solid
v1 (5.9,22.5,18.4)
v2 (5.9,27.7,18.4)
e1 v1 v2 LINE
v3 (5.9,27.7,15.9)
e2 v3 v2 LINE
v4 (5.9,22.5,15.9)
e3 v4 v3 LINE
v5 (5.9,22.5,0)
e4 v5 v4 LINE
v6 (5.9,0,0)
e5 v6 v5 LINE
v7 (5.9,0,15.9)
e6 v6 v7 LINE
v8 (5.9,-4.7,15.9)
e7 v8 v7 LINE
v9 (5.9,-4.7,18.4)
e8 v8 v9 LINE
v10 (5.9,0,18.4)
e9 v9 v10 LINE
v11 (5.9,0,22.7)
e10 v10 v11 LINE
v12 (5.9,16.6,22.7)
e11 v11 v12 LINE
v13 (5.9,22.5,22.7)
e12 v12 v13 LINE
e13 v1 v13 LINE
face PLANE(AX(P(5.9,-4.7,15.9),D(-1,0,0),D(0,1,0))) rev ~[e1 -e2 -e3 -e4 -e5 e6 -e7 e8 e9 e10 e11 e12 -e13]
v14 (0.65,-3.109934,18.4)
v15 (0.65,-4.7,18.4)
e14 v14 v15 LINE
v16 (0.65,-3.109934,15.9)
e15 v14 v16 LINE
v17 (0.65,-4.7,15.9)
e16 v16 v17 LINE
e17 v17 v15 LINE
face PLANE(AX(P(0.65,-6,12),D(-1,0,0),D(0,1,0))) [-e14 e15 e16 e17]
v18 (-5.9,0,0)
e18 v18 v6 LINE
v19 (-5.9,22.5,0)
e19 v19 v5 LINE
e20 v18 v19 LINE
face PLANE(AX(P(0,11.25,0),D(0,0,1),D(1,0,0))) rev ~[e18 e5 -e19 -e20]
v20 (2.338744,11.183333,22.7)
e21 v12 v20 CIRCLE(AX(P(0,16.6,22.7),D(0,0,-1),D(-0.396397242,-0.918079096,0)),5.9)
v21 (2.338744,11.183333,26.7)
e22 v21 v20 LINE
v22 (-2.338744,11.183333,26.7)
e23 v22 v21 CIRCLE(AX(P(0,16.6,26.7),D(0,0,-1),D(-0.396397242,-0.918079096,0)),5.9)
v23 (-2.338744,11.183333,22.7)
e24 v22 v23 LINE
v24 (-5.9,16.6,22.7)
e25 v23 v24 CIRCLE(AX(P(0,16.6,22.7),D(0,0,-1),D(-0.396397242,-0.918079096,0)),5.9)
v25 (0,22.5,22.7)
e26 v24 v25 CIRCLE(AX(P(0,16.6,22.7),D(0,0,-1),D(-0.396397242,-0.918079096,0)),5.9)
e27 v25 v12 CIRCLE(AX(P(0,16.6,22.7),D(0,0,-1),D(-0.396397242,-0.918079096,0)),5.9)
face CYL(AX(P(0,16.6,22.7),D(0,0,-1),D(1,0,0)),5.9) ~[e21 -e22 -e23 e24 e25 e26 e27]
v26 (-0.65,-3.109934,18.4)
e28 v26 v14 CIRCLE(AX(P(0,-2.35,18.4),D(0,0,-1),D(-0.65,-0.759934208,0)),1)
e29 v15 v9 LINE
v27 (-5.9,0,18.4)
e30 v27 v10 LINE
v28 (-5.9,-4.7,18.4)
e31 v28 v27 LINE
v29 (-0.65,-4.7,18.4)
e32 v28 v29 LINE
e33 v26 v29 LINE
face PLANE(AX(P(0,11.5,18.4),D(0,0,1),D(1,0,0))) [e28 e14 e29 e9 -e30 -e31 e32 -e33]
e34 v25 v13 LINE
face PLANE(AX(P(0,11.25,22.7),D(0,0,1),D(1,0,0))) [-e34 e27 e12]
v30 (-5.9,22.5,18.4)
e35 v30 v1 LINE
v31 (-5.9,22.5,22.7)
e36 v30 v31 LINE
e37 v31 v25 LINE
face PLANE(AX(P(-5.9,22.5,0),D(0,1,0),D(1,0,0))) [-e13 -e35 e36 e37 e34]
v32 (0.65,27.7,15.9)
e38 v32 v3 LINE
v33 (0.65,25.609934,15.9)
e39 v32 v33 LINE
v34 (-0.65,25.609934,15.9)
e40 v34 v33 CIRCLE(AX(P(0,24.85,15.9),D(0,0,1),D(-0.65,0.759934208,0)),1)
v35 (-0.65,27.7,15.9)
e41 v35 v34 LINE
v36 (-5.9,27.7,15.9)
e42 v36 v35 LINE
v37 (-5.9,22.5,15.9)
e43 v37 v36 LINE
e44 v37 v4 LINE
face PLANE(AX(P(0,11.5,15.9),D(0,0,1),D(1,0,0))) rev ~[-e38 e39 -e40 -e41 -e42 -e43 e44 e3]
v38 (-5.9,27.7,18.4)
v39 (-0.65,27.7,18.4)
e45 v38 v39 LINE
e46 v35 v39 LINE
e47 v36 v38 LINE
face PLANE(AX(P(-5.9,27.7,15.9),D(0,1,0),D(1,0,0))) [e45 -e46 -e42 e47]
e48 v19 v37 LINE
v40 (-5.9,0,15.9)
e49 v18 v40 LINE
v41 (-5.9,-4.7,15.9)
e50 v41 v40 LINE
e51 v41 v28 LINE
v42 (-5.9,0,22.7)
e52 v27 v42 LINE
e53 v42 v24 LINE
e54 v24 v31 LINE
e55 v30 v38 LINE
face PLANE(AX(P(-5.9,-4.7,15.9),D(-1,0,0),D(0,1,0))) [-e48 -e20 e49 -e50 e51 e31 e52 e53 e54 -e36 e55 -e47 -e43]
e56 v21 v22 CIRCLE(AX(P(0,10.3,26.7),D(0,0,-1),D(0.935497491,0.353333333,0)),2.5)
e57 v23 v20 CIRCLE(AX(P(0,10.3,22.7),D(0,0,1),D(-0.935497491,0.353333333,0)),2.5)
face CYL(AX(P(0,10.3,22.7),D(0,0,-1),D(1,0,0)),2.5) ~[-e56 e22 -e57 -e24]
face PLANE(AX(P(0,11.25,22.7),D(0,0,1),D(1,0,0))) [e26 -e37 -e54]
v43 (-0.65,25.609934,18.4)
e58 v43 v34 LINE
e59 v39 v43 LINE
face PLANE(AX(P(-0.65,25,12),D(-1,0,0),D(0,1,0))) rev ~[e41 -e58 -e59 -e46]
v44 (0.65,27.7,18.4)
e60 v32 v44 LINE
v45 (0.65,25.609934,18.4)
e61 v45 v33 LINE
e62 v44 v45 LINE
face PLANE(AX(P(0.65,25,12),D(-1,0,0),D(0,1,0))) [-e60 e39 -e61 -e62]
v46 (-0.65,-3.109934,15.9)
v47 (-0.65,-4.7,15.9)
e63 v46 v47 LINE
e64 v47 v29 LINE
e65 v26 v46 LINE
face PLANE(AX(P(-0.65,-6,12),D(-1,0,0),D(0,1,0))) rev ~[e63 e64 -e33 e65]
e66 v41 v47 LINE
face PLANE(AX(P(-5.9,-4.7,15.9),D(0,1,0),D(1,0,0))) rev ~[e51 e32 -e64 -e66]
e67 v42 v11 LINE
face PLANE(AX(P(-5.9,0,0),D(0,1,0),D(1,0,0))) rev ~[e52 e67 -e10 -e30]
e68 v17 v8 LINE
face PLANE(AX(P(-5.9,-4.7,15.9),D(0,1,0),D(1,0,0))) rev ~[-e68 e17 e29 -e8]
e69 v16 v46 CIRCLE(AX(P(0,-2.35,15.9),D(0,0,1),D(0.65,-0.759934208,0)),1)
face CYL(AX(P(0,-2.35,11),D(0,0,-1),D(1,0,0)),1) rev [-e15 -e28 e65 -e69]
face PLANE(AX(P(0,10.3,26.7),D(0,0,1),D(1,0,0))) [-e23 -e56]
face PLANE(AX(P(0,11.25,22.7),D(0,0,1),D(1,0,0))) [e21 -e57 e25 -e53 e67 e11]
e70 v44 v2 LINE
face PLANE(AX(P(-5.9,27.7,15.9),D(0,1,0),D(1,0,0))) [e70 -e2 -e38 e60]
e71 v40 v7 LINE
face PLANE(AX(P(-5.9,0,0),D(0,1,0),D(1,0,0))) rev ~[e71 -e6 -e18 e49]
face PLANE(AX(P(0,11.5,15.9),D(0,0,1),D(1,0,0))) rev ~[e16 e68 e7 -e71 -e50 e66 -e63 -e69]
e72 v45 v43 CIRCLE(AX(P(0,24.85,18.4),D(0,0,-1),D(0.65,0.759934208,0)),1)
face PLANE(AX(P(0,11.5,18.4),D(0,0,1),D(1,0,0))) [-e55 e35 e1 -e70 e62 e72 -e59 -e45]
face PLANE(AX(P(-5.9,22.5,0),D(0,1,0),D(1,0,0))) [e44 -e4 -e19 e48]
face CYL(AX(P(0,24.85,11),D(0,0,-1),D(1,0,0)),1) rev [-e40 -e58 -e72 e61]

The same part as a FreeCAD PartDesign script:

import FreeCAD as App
import Part
import Sketcher


def add_polygon(sketch, points):
    """Adds a closed chain of lines whose ends are joined by coincident constraints."""
    first, n = sketch.GeometryCount, len(points)
    for a, b in zip(points, points[1:] + points[:1]):
        sketch.addGeometry(Part.LineSegment(App.Vector(*a, 0), App.Vector(*b, 0)), False)
    for i in range(n):
        sketch.addConstraint(Sketcher.Constraint("Coincident", first + i, 2, first + (i + 1) % n, 1))

doc = App.newDocument("Part")
body = doc.addObject("PartDesign::Body", "Body")

# Sketch on XY plane
sketch1 = doc.addObject("Sketcher::SketchObject", "Sketch")
body.addObject(sketch1)
sketch1.AttachmentSupport = (doc.XY_Plane, [""])
sketch1.MapMode = "FlatFace"
sketch1.AttachmentOffset = App.Placement(App.Vector(0, 0, 12), App.Rotation())
add_polygon(sketch1, [(5.2, 28.3), (5.2, 25), (6.5, 25), (6.5, 28.3)])  # lines 0-3
sketch1.addConstraint([
    Sketcher.Constraint("Vertical", 0),
    Sketcher.Constraint("Horizontal", 1),
    Sketcher.Constraint("Vertical", 2),
    Sketcher.Constraint("Horizontal", 3),
    Sketcher.Constraint("DistanceX", 1, 1, 1, 2, 1.3),
    Sketcher.Constraint("DistanceY", 0, 2, 0, 1, 3.3),
    Sketcher.Constraint("DistanceY", -1, 1, 0, 2, 25.0),
    Sketcher.Constraint("DistanceX", -1, 1, 0, 2, 5.25),
])
pad1 = doc.addObject("PartDesign::Pad", "Pad")
body.addObject(pad1)
pad1.Profile = sketch1
pad1.Length = 10
body2 = doc.addObject("PartDesign::Body", "Body001")
body2.AllowCompound = True

# Sketch on XY plane
sketch2 = doc.addObject("Sketcher::SketchObject", "Sketch001")
body2.addObject(sketch2)
sketch2.AttachmentSupport = (doc.getObject("XY_Plane001"), [""])
sketch2.MapMode = "FlatFace"
sketch2.AttachmentOffset = App.Placement(App.Vector(0, 0, 12), App.Rotation())
add_polygon(sketch2, [(5.2, -2.7), (5.2, -6), (6.5, -6), (6.5, -2.7)])  # lines 0-3
sketch2.addConstraint([
    Sketcher.Constraint("Vertical", 0),
    Sketcher.Constraint("Horizontal", 1),
    Sketcher.Constraint("Vertical", 2),
    Sketcher.Constraint("Horizontal", 3),
    Sketcher.Constraint("DistanceX", 1, 1, 1, 2, 1.3),
    Sketcher.Constraint("DistanceY", 0, 2, 0, 1, 3.3),
    Sketcher.Constraint("DistanceY", 0, 2, -1, 1, 6.0),
    Sketcher.Constraint("DistanceX", -1, 1, 0, 2, 5.25),
])
pad2 = doc.addObject("PartDesign::Pad", "Pad001")
body2.addObject(pad2)
pad2.Profile = sketch2
pad2.Length = 10
doc.recompute()

boolean = doc.addObject("PartDesign::Boolean", "Boolean")
body2.addObject(boolean)
boolean.Type = "Fuse"
boolean.addObjects([body])
body3 = doc.addObject("PartDesign::Body", "Body002")

# Sketch on XY plane
sketch3 = doc.addObject("Sketcher::SketchObject", "Sketch002")
body3.addObject(sketch3)
sketch3.AttachmentSupport = (doc.getObject("XY_Plane002"), [""])
sketch3.MapMode = "FlatFace"
sketch3.AttachmentOffset = App.Placement(App.Vector(0, 0, 11), App.Rotation())
sketch3.addGeometry(Part.Circle(App.Vector(5.9, 24.9, 0), App.Vector(0, 0, 1), 1), False)
sketch3.addConstraint([
    Sketcher.Constraint("Diameter", 0, 2.0),
    Sketcher.Constraint("DistanceX", -1, 1, 0, 3, 5.9),
    Sketcher.Constraint("DistanceY", -1, 1, 0, 3, 24.85),
])
pad3 = doc.addObject("PartDesign::Pad", "Pad002")
body3.addObject(pad3)
pad3.Profile = sketch3
pad3.Length = 10
body4 = doc.addObject("PartDesign::Body", "Body003")
body4.AllowCompound = True

# Sketch on XY plane
sketch4 = doc.addObject("Sketcher::SketchObject", "Sketch003")
body4.addObject(sketch4)
sketch4.AttachmentSupport = (doc.getObject("XY_Plane003"), [""])
sketch4.MapMode = "FlatFace"
sketch4.AttachmentOffset = App.Placement(App.Vector(0, 0, 11), App.Rotation())
sketch4.addGeometry(Part.Circle(App.Vector(5.9, -2.4, 0), App.Vector(0, 0, 1), 1), False)
sketch4.addConstraint([
    Sketcher.Constraint("Diameter", 0, 2.0),
    Sketcher.Constraint("DistanceX", -1, 1, 0, 3, 5.9),
    Sketcher.Constraint("DistanceY", 0, 3, -1, 1, 2.35),
])
pad4 = doc.addObject("PartDesign::Pad", "Pad003")
body4.addObject(pad4)
pad4.Profile = sketch4
pad4.Length = 10
doc.recompute()

boolean2 = doc.addObject("PartDesign::Boolean", "Boolean001")
body4.addObject(boolean2)
boolean2.Type = "Fuse"
boolean2.addObjects([body3])
doc.recompute()

boolean3 = doc.addObject("PartDesign::Boolean", "Boolean002")
body4.addObject(boolean3)
boolean3.Type = "Fuse"
boolean3.addObjects([body2])
body5 = doc.addObject("PartDesign::Body", "Body004")

# Sketch on XY plane
sketch5 = doc.addObject("Sketcher::SketchObject", "Sketch004")
body5.addObject(sketch5)
sketch5.AttachmentSupport = (doc.getObject("XY_Plane004"), [""])
sketch5.MapMode = "FlatFace"
sketch5.AttachmentOffset = App.Placement(App.Vector(0, 0, 22.7), App.Rotation())
sketch5.addGeometry(Part.Circle(App.Vector(5.9, 10.3, 0), App.Vector(0, 0, 1), 2.5), False)
sketch5.addConstraint([
    Sketcher.Constraint("Diameter", 0, 5.0),
    Sketcher.Constraint("DistanceX", -1, 1, 0, 3, 5.9),
    Sketcher.Constraint("DistanceY", -1, 1, 0, 3, 10.3),
])
pad5 = doc.addObject("PartDesign::Pad", "Pad004")
body5.addObject(pad5)
pad5.Profile = sketch5
pad5.Length = 4
body6 = doc.addObject("PartDesign::Body", "Body005")

# Sketch on XY plane
sketch6 = doc.addObject("Sketcher::SketchObject", "Sketch005")
body6.addObject(sketch6)
sketch6.AttachmentSupport = (doc.getObject("XY_Plane005"), [""])
sketch6.MapMode = "FlatFace"
sketch6.AttachmentOffset = App.Placement(App.Vector(0, 0, 22.7), App.Rotation())
sketch6.addGeometry(Part.Circle(App.Vector(6, 17, 0), App.Vector(0, 0, 1), 6), False)
sketch6.addConstraint([
    Sketcher.Constraint("Diameter", 0, 11.8),
    Sketcher.Constraint("DistanceX", -1, 1, 0, 3, 5.9),
    Sketcher.Constraint("DistanceY", -1, 1, 0, 3, 16.6),
])
pad6 = doc.addObject("PartDesign::Pad", "Pad005")
body6.addObject(pad6)
pad6.Profile = sketch6
pad6.Length = 4
doc.recompute()

boolean4 = doc.addObject("PartDesign::Boolean", "Boolean003")
body6.addObject(boolean4)
boolean4.Type = "Fuse"
boolean4.addObjects([body5])
body7 = doc.addObject("PartDesign::Body", "Body006")

# Sketch on XY plane
sketch7 = doc.addObject("Sketcher::SketchObject", "Sketch006")
body7.addObject(sketch7)
sketch7.AttachmentSupport = (doc.getObject("XY_Plane006"), [""])
sketch7.MapMode = "FlatFace"
sketch7.AttachmentOffset = App.Placement(App.Vector(0, 0, 15.9), App.Rotation())
add_polygon(sketch7, [(0, 28), (0, -5), (12, -5), (12, 28)])  # lines 0-3
sketch7.addConstraint([
    Sketcher.Constraint("Vertical", 0),
    Sketcher.Constraint("Horizontal", 1),
    Sketcher.Constraint("Vertical", 2),
    Sketcher.Constraint("Horizontal", 3),
    Sketcher.Constraint("PointOnObject", 0, 2, -2),
    Sketcher.Constraint("DistanceX", 1, 1, 1, 2, 11.8),
    Sketcher.Constraint("DistanceY", 0, 2, 0, 1, 32.4),
    Sketcher.Constraint("DistanceY", 0, 2, -1, 1, 4.7),
])
pad7 = doc.addObject("PartDesign::Pad", "Pad006")
body7.addObject(pad7)
pad7.Profile = sketch7
pad7.Length = 2.5
body8 = doc.addObject("PartDesign::Body", "Body007")

# Sketch on XY plane
sketch8 = doc.addObject("Sketcher::SketchObject", "Sketch007")
body8.addObject(sketch8)
sketch8.AttachmentSupport = (doc.getObject("XY_Plane007"), [""])
sketch8.MapMode = "FlatFace"
add_polygon(sketch8, [(0, 22), (0, 0), (12, 0), (12, 22)])  # lines 0-3
sketch8.addConstraint([
    Sketcher.Constraint("Vertical", 0),
    Sketcher.Constraint("Horizontal", 1),
    Sketcher.Constraint("Vertical", 2),
    Sketcher.Constraint("Horizontal", 3),
    Sketcher.Constraint("Coincident", 0, 2, -1, 1),
    Sketcher.Constraint("DistanceX", 1, 1, 1, 2, 11.8),
    Sketcher.Constraint("DistanceY", 0, 2, 0, 1, 22.5),
])
pad8 = doc.addObject("PartDesign::Pad", "Pad007")
body8.addObject(pad8)
pad8.Profile = sketch8
pad8.Length = 22.7
doc.recompute()

boolean5 = doc.addObject("PartDesign::Boolean", "Boolean004")
body8.addObject(boolean5)
boolean5.Type = "Fuse"
boolean5.addObjects([body7])
doc.recompute()

boolean6 = doc.addObject("PartDesign::Boolean", "Boolean005")
body8.addObject(boolean6)
boolean6.Type = "Fuse"
boolean6.addObjects([body6])
doc.recompute()

boolean7 = doc.addObject("PartDesign::Boolean", "Boolean006")
body8.addObject(boolean7)
boolean7.Type = "Cut"
boolean7.addObjects([body4])
body9 = doc.addObject("PartDesign::Body", "Body008")
doc.recompute()

body8.Placement = App.Placement(App.Vector(-5.9, 0, 0), App.Rotation(App.Vector(0, 0, 1), 0))
boolean8 = doc.addObject("PartDesign::Boolean", "Boolean007")
body9.addObject(boolean8)
boolean8.Type = "Fuse"
boolean8.addObjects([body8])

doc.recompute()
